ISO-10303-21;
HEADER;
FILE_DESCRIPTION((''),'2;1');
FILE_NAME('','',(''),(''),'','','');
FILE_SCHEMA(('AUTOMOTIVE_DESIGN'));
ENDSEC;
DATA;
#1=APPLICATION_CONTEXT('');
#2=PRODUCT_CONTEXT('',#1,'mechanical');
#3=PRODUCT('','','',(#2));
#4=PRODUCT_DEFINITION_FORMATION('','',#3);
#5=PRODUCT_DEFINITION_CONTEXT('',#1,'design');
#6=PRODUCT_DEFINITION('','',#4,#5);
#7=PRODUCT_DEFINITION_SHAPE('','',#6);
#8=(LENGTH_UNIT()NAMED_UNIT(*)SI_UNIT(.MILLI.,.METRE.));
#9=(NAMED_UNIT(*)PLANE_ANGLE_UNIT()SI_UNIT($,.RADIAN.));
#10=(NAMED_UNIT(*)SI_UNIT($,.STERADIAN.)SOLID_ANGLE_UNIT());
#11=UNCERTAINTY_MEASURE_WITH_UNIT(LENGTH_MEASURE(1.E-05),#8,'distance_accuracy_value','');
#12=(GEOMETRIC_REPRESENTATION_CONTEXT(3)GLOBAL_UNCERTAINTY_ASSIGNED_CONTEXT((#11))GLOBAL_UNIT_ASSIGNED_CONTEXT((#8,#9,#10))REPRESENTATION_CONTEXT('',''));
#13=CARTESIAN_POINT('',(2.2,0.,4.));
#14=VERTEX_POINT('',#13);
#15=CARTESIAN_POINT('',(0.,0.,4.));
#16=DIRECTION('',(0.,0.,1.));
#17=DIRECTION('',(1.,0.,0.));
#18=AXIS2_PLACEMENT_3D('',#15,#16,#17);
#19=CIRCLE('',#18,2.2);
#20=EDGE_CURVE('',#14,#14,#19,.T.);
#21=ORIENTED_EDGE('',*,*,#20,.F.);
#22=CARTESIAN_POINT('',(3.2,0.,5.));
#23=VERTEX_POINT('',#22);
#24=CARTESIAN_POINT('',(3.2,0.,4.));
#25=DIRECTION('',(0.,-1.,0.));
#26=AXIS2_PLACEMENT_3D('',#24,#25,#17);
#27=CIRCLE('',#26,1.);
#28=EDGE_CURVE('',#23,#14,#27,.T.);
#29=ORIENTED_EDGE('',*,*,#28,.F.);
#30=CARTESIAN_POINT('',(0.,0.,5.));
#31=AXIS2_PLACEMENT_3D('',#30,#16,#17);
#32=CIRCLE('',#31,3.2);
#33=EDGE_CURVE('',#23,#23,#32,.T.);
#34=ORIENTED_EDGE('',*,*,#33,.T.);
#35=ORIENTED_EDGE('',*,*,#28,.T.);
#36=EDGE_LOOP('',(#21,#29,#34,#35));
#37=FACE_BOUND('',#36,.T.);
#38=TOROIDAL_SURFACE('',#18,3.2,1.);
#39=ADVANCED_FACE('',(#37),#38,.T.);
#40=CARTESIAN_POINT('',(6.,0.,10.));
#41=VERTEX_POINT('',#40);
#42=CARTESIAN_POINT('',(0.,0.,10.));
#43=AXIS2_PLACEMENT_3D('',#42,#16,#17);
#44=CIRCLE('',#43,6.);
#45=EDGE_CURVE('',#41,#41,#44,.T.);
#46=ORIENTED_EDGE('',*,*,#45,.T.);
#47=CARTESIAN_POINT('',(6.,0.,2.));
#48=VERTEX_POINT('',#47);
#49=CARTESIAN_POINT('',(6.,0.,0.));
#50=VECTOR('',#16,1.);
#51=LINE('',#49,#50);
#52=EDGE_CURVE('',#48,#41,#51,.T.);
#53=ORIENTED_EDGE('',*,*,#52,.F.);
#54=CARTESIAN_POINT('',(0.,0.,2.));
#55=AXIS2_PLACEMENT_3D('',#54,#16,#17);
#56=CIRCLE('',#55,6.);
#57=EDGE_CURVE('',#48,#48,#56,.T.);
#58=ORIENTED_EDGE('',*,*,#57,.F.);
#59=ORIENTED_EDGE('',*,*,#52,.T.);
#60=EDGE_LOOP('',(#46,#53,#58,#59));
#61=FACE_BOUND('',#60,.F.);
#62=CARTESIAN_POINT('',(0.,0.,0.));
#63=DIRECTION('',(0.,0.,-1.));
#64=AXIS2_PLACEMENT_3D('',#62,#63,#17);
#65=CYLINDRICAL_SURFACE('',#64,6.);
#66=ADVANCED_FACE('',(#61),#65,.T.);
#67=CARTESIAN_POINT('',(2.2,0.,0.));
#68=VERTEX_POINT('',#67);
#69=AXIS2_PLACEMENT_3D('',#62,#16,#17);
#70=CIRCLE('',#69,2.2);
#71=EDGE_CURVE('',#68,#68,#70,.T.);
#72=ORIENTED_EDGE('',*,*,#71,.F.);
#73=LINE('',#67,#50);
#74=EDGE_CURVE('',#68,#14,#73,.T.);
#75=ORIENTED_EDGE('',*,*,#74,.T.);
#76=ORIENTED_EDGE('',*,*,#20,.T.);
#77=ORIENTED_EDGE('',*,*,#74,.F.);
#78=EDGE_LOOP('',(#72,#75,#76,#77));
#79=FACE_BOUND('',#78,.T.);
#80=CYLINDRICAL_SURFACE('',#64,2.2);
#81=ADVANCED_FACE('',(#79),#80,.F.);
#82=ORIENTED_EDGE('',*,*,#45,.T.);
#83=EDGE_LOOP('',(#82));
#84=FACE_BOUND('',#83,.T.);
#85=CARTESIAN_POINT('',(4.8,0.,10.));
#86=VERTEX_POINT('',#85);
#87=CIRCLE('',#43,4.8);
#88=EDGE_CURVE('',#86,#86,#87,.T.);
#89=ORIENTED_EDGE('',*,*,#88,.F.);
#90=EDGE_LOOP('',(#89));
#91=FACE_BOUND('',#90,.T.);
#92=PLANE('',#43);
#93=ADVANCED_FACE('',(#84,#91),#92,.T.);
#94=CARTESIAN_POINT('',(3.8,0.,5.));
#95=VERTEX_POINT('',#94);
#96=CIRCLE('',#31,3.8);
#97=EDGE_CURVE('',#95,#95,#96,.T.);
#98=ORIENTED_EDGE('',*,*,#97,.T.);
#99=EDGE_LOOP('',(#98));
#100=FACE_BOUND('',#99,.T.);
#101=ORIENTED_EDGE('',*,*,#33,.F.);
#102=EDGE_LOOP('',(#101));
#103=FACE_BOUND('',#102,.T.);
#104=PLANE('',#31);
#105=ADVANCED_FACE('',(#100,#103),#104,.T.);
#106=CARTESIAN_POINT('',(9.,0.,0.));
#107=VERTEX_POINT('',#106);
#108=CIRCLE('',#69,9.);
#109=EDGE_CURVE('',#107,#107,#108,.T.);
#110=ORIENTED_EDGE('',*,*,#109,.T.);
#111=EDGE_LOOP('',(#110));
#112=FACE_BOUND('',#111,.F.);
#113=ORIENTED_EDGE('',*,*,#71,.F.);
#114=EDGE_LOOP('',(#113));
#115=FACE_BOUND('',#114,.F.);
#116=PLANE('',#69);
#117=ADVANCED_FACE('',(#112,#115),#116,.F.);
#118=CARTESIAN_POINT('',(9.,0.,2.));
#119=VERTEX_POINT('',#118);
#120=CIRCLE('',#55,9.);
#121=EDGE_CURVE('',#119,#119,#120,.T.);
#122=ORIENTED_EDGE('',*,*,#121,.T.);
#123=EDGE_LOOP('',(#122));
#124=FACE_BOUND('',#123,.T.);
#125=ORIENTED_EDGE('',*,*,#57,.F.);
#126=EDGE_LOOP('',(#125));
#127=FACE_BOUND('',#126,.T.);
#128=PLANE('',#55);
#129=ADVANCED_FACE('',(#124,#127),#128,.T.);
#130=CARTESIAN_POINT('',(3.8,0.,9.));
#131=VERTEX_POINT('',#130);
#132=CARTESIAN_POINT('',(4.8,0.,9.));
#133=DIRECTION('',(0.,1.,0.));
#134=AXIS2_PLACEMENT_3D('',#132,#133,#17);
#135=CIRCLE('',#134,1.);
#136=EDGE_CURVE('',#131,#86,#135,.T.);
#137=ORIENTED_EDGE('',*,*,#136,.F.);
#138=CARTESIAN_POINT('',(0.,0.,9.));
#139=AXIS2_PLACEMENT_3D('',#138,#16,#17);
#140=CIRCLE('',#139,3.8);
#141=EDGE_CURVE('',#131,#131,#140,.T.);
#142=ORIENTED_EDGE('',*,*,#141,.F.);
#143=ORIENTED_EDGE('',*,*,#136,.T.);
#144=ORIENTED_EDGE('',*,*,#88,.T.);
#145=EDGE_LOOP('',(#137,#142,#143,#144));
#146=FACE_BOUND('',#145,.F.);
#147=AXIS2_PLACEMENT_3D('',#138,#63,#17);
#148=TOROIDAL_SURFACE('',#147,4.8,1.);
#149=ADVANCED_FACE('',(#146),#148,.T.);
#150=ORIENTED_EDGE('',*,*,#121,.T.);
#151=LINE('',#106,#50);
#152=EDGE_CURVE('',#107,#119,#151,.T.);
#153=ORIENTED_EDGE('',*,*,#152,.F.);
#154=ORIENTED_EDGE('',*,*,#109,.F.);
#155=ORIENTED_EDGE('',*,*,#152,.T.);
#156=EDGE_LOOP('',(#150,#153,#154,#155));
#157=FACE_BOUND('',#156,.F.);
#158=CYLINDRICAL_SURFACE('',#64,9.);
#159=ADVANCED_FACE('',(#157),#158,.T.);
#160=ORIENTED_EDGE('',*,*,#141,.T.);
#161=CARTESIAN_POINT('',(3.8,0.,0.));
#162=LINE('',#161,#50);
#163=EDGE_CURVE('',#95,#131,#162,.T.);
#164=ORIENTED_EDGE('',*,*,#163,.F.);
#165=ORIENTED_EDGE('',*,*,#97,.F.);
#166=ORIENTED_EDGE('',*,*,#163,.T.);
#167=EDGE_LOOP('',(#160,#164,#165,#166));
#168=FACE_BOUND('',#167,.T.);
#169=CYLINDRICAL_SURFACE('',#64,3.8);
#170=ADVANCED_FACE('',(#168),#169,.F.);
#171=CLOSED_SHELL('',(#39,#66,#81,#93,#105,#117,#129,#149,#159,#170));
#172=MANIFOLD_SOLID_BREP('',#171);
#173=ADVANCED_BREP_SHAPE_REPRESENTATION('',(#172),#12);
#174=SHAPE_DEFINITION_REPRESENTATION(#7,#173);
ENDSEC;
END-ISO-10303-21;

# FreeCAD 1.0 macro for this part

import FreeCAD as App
import Part
import Sketcher

V = App.Vector


def edges_at(feature, points):
    """Names of the edges that pass closest to the given points."""
    edges = feature.Shape.Edges
    near = lambda p: min(range(len(edges)), key=lambda i: edges[i].distToShape(Part.Vertex(*p))[0])
    return sorted({f"Edge{near(p) + 1}" for p in points})

doc = App.newDocument("Part")
body = doc.addObject("PartDesign::Body", "Body")

sketch1 = doc.addObject("Sketcher::SketchObject", "Sketch")
body.addObject(sketch1)
sketch1.AttachmentSupport = (doc.XY_Plane, [""])
sketch1.MapMode = "FlatFace"
sketch1.addGeometry([
    Part.Circle(V(0, 0, 0), V(0, 0, 1), 9),
    Part.Circle(V(0, 0, 0), V(0, 0, 1), 6),
], False)
sketch1.addConstraint([
    Sketcher.Constraint("Coincident", 0, 3, -1, 1),
    Sketcher.Constraint("Coincident", 1, 3, -1, 1),
    Sketcher.Constraint("Diameter", 0, 18.0),
    Sketcher.Constraint("Diameter", 1, 12.0),
])
pad1 = doc.addObject("PartDesign::Pad", "Pad")
body.addObject(pad1)
pad1.Profile = sketch1
pad1.Length = 2

sketch2 = doc.addObject("Sketcher::SketchObject", "Sketch001")
body.addObject(sketch2)
sketch2.AttachmentSupport = (doc.XY_Plane, [""])
sketch2.MapMode = "FlatFace"
sketch2.addGeometry([
    Part.Circle(V(0, 0, 0), V(0, 0, 1), 6),
    Part.Circle(V(0, 0, 0), V(0, 0, 1), 3.8),
], False)
sketch2.addConstraint([
    Sketcher.Constraint("Coincident", 0, 3, -1, 1),
    Sketcher.Constraint("Coincident", 1, 3, -1, 1),
    Sketcher.Constraint("Diameter", 0, 12.0),
    Sketcher.Constraint("Diameter", 1, 7.6),
])
pad2 = doc.addObject("PartDesign::Pad", "Pad001")
body.addObject(pad2)
pad2.Profile = sketch2
pad2.Length = 10

sketch3 = doc.addObject("Sketcher::SketchObject", "Sketch002")
body.addObject(sketch3)
sketch3.AttachmentSupport = (doc.XY_Plane, [""])
sketch3.MapMode = "FlatFace"
sketch3.addGeometry([
    Part.Circle(V(0, 0, 0), V(0, 0, 1), 3.8),
    Part.Circle(V(0, 0, 0), V(0, 0, 1), 2.2),
], False)
sketch3.addConstraint([
    Sketcher.Constraint("Coincident", 0, 3, -1, 1),
    Sketcher.Constraint("Coincident", 1, 3, -1, 1),
    Sketcher.Constraint("Diameter", 0, 7.6),
    Sketcher.Constraint("Diameter", 1, 4.4),
])
pad3 = doc.addObject("PartDesign::Pad", "Pad002")
body.addObject(pad3)
pad3.Profile = sketch3
pad3.Length = 5
doc.recompute()

fillet = doc.addObject("PartDesign::Fillet", "Fillet")
body.addObject(fillet)
fillet.Base = (pad3, edges_at(pad3, [(-3.8, 0, 10)]))
fillet.Radius = 1
doc.recompute()

fillet2 = doc.addObject("PartDesign::Fillet", "Fillet001")
body.addObject(fillet2)
fillet2.Base = (fillet, edges_at(fillet, [(-2.2, 0, 5)]))
fillet2.Radius = 1

doc.recompute()
